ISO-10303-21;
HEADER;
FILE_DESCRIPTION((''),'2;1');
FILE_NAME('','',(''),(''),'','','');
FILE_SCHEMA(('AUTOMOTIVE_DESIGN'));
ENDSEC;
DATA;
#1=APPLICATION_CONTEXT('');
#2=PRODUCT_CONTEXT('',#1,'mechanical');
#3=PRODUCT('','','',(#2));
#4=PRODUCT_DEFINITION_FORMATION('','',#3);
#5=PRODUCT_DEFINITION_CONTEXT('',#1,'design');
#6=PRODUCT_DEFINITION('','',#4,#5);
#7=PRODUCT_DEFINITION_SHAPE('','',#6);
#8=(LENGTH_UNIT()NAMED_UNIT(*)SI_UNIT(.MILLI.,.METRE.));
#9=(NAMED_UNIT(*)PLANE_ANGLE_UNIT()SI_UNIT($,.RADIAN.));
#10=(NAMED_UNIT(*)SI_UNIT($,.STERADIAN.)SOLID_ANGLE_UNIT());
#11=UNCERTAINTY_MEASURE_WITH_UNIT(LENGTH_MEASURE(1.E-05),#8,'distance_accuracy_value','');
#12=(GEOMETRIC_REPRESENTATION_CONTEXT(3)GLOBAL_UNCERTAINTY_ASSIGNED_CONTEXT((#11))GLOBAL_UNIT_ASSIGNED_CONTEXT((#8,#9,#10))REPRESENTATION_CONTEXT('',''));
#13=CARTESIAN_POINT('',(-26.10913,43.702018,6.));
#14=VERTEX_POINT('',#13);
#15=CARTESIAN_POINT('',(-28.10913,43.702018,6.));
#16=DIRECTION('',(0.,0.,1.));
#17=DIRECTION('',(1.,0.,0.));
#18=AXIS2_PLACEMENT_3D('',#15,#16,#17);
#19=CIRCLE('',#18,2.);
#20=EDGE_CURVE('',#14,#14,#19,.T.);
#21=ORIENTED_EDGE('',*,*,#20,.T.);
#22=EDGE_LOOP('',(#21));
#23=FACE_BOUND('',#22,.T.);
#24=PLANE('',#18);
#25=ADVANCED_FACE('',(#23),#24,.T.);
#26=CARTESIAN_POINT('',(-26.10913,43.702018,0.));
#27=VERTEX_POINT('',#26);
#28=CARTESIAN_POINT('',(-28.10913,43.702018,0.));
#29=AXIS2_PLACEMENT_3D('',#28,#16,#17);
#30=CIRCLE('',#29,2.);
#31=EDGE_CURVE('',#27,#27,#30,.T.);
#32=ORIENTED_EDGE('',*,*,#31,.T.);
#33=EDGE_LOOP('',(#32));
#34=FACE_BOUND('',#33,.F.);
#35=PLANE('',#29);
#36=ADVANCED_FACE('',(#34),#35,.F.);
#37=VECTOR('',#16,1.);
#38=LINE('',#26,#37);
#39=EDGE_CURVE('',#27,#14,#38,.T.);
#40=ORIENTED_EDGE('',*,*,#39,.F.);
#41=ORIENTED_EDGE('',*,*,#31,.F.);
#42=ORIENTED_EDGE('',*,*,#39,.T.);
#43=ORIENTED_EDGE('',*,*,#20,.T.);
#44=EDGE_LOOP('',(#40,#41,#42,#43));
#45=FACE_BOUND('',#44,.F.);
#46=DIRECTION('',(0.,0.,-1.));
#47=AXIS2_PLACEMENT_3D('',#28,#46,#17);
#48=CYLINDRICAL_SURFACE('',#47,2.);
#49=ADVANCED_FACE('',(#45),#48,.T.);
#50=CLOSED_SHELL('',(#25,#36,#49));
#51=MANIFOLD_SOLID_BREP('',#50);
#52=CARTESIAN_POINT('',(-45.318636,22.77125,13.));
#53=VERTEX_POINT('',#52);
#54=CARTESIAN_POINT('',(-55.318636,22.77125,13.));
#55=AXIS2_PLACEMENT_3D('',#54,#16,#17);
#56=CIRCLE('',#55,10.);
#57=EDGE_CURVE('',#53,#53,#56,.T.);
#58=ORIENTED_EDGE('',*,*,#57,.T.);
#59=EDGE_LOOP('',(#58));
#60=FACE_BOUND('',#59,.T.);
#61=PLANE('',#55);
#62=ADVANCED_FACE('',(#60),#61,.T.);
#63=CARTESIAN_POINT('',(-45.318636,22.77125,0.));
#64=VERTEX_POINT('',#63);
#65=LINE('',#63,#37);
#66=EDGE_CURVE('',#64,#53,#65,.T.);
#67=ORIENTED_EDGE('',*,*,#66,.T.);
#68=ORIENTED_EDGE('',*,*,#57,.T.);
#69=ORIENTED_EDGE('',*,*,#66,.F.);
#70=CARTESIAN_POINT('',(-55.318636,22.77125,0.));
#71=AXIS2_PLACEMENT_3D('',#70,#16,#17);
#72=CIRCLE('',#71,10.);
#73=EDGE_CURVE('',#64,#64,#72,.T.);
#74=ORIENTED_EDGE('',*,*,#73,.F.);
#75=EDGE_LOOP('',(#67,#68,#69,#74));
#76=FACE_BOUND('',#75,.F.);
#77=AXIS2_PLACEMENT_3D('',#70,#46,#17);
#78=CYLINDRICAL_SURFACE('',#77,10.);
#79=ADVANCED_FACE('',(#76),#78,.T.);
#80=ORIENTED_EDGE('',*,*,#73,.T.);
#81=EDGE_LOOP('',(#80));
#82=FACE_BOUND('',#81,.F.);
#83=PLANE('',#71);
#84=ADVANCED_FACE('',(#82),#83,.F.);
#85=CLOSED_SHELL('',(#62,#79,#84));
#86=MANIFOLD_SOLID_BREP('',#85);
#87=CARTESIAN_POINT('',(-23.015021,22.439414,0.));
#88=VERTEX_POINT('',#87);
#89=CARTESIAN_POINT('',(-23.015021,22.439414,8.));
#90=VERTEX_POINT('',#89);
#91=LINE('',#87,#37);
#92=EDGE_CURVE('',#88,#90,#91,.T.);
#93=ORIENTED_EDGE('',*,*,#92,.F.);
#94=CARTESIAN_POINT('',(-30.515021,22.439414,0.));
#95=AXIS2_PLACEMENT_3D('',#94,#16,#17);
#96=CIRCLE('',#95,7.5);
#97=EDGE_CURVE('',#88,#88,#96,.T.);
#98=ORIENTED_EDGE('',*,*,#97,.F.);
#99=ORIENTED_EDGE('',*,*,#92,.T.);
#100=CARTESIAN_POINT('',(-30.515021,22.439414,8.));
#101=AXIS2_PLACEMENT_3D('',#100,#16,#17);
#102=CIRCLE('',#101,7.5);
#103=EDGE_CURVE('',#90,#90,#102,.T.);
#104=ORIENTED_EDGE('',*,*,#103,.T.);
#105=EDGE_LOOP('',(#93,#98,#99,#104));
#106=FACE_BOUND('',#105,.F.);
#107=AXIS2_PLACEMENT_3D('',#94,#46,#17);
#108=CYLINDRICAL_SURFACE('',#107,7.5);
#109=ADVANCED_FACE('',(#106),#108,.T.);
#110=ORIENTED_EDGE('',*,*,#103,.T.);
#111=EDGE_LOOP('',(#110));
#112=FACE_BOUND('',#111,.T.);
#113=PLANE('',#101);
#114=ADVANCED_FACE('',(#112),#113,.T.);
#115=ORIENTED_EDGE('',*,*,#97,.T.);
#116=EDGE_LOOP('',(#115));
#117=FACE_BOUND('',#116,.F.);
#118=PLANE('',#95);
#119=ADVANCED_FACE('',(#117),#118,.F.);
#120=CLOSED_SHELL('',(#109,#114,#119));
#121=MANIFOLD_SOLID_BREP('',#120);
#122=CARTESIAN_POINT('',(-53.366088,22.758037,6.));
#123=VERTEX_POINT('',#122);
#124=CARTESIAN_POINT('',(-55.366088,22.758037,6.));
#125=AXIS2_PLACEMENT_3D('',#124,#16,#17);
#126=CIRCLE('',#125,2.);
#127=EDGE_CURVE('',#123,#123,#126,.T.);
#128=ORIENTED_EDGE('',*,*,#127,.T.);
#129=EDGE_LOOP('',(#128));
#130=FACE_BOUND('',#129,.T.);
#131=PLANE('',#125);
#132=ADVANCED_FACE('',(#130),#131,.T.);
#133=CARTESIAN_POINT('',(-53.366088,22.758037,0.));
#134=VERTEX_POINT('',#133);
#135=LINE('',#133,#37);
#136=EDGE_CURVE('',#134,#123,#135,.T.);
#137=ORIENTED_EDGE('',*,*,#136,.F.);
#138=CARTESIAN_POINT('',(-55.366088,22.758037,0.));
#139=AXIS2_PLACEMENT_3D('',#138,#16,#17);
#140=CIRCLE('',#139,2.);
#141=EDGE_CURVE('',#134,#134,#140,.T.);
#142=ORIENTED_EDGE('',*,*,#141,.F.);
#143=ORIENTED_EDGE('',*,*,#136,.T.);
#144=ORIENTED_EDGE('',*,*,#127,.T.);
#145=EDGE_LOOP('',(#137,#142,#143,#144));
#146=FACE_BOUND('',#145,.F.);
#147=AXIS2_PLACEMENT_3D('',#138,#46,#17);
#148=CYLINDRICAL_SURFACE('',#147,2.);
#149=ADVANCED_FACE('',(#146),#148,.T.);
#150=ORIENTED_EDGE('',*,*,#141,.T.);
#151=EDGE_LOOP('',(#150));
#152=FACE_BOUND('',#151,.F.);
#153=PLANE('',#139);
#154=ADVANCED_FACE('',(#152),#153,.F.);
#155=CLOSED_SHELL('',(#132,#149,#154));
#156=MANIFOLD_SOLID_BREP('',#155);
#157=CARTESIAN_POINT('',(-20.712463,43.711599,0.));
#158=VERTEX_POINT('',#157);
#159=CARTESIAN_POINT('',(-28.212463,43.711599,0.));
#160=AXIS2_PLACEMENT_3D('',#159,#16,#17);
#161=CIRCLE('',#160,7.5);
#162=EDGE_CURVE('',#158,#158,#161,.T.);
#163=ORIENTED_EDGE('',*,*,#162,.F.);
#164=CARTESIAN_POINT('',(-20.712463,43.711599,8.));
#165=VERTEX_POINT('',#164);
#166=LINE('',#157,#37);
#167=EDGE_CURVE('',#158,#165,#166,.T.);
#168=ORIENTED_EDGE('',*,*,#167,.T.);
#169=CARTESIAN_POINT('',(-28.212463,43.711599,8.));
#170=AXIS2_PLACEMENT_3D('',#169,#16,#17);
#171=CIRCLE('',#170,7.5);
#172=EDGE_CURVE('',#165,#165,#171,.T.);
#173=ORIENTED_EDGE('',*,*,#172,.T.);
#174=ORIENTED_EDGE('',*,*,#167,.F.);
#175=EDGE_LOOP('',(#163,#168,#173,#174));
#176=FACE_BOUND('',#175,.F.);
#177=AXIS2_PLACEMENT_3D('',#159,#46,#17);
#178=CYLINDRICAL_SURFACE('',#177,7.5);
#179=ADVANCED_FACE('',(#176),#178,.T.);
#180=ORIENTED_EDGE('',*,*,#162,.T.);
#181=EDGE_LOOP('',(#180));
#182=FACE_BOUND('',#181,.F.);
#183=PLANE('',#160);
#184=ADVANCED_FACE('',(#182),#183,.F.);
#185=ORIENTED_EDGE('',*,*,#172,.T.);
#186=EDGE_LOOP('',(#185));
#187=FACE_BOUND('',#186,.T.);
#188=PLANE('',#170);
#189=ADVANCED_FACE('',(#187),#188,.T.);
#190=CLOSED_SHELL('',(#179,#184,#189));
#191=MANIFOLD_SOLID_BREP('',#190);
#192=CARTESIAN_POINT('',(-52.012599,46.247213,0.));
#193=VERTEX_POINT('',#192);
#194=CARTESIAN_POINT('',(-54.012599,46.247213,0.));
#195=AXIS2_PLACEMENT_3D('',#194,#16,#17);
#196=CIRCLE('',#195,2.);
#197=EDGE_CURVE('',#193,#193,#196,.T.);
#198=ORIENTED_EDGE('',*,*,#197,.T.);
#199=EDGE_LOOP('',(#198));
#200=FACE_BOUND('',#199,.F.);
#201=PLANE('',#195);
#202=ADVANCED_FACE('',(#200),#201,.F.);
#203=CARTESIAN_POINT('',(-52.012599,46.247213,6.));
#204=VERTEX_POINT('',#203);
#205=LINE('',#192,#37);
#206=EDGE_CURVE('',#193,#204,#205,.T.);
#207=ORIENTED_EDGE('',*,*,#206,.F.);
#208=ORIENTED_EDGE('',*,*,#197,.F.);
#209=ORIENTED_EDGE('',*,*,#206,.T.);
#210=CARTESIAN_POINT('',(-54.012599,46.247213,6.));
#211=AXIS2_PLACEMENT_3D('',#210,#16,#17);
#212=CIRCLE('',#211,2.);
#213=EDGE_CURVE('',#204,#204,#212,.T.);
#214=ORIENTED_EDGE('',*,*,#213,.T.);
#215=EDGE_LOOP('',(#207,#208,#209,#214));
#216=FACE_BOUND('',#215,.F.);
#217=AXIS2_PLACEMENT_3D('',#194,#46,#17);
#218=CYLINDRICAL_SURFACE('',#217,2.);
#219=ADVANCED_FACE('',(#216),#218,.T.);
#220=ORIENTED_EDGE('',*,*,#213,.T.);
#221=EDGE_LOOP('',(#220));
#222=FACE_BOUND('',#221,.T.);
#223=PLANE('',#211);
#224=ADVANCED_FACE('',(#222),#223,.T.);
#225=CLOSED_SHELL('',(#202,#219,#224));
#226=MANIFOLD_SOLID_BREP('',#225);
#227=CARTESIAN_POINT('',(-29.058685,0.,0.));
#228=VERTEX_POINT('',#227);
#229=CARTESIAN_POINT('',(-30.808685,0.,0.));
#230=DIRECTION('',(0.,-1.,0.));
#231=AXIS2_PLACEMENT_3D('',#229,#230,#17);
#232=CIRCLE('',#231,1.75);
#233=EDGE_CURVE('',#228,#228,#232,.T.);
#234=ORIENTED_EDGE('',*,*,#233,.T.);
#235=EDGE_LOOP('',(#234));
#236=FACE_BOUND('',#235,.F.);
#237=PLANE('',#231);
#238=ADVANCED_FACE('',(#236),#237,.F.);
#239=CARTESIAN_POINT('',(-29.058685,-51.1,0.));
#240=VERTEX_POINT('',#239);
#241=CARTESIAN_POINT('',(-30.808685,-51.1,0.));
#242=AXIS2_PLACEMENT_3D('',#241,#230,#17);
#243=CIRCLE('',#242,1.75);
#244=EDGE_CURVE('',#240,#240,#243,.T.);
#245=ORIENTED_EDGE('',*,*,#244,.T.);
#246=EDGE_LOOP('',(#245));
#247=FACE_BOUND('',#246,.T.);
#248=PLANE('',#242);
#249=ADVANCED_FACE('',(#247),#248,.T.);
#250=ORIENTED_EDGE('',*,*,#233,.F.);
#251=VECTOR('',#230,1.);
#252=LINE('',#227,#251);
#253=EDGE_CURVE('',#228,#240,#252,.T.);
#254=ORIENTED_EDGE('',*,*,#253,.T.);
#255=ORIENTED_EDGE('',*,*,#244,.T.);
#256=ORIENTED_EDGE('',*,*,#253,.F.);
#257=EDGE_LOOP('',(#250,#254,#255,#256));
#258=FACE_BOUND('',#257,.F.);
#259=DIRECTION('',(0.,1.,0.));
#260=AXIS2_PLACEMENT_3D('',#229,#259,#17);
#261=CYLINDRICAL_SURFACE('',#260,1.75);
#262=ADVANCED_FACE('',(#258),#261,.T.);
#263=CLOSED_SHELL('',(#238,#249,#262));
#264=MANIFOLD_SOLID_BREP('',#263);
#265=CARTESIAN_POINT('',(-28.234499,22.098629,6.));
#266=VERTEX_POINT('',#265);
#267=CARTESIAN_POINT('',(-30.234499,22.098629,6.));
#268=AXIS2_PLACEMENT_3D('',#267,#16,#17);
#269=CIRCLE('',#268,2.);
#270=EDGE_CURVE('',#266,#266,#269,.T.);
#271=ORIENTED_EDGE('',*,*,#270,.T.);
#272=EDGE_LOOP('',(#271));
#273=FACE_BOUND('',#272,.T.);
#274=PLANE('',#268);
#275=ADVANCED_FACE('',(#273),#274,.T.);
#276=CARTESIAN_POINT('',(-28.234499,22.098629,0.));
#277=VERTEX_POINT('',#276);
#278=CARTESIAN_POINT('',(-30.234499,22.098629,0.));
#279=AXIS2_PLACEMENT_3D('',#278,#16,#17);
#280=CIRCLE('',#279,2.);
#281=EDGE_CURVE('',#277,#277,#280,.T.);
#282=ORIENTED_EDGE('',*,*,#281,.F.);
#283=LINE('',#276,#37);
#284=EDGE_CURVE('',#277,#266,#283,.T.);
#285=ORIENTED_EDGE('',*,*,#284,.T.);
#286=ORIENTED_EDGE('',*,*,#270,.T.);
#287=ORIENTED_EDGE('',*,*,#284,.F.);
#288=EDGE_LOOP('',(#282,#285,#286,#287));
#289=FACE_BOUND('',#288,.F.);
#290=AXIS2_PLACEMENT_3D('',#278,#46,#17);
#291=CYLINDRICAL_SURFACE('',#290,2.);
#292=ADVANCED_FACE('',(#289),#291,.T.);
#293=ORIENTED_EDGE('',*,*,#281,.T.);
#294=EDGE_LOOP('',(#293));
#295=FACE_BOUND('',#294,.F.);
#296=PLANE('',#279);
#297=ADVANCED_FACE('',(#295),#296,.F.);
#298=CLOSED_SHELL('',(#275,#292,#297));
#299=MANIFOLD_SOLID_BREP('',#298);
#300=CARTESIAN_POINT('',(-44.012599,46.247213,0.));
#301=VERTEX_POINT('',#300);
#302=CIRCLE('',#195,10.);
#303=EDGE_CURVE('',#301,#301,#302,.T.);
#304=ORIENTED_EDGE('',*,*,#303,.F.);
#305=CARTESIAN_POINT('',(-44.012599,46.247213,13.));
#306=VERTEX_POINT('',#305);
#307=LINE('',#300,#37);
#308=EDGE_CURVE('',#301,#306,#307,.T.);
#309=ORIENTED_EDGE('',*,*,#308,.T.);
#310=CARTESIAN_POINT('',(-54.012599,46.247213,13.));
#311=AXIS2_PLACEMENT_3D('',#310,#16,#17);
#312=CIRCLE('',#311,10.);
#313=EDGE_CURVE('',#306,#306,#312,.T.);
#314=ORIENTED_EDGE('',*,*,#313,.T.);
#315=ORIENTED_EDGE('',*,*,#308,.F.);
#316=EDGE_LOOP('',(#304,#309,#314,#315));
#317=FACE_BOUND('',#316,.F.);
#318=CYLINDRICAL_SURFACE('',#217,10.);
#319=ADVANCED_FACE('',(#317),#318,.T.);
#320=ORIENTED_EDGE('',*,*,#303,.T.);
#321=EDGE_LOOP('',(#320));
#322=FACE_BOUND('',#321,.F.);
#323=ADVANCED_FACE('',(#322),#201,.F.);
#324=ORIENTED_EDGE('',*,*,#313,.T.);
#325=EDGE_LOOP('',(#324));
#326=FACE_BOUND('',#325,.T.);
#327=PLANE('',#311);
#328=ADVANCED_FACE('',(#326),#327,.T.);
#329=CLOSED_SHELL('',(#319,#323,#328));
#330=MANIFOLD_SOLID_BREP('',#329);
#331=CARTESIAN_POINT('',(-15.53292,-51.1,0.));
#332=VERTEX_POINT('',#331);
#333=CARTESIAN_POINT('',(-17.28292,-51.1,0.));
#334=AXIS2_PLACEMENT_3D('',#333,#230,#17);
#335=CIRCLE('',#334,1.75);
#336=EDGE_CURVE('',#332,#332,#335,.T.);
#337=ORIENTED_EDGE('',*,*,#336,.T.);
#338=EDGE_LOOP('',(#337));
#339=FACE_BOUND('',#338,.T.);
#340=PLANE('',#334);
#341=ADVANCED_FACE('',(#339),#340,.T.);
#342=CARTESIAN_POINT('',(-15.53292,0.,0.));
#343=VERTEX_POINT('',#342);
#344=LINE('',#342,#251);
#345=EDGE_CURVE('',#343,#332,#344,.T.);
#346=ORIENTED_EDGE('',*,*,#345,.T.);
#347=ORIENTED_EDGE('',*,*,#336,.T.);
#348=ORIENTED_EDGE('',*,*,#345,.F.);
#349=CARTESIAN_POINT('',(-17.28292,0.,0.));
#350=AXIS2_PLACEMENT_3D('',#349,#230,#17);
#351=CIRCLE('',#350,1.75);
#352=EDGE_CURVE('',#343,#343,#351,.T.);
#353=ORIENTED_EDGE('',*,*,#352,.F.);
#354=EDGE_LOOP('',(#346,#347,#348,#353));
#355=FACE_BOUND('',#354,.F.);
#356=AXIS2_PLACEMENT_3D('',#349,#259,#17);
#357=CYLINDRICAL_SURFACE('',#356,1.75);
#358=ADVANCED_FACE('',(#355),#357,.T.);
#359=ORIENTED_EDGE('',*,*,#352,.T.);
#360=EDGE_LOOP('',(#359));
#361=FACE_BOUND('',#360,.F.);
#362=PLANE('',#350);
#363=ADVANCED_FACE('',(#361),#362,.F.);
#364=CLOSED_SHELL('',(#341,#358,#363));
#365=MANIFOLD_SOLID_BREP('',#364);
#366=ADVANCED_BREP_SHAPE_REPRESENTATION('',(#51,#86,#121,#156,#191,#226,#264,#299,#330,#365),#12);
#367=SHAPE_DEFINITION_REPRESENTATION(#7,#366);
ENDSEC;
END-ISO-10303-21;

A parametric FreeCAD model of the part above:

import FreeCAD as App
import Part
import Sketcher
from FreeCAD import Vector
Q = App.Units.Quantity

doc = App.newDocument("Part")
body = doc.addObject("PartDesign::Body", "Body")

# Sketch on XZ plane
sketch1 = body.newObject("Sketcher::SketchObject", "Sketch")
sketch1.AttachmentSupport = (doc.getObject("XZ_Plane"), [""])
sketch1.MapMode = "FlatFace"
sketch1.addGeometry(Part.Circle(Vector(-17.3, 0, 0), Vector(0, 0, 1), 1.8), False)
sketch1.addConstraint([
    Sketcher.Constraint("PointOnObject", 0, 3, -1),
    Sketcher.Constraint("Diameter", 0, Q("3.5 mm")),
    Sketcher.Constraint("DistanceX", 0, 3, -1, 1, Q("17.28292 mm")),
])
pad1 = body.newObject("PartDesign::Pad", "Pad")
pad1.Profile = sketch1
pad1.Length = 51.1
body2 = doc.addObject("PartDesign::Body", "Body001")
body2.AllowCompound = True

# Sketch on XY plane
sketch2 = body2.newObject("Sketcher::SketchObject", "Sketch001")
sketch2.AttachmentSupport = (doc.getObject("XY_Plane001"), [""])
sketch2.MapMode = "FlatFace"
sketch2.addGeometry([
    Part.Circle(Vector(-31, 22, 0), Vector(0, 0, 1), 8),
    Part.Circle(Vector(-28, 44, 0), Vector(0, 0, 1), 8),
], False)
sketch2.addConstraint([
    Sketcher.Constraint("Equal", 0, 1),
    Sketcher.Constraint("Diameter", 0, Q("15 mm")),
    Sketcher.Constraint("DistanceY", -1, 1, 1, 3, Q("43.711599 mm")),
    Sketcher.Constraint("DistanceX", 0, 3, -1, 1, Q("30.515021 mm")),
    Sketcher.Constraint("DistanceX", 0, 3, 1, 3, Q("2.302558 mm")),
    Sketcher.Constraint("DistanceY", -1, 1, 0, 3, Q("22.439414 mm")),
])
pad2 = body2.newObject("PartDesign::Pad", "Pad001")
pad2.Profile = sketch2
pad2.Length = 8
body3 = doc.addObject("PartDesign::Body", "Body002")
body3.AllowCompound = True

# Sketch on XY plane
sketch3 = body3.newObject("Sketcher::SketchObject", "Sketch002")
sketch3.AttachmentSupport = (doc.getObject("XY_Plane002"), [""])
sketch3.MapMode = "FlatFace"
sketch3.addGeometry([
    Part.Circle(Vector(-54, 46, 0), Vector(0, 0, 1), 10),
    Part.Circle(Vector(-55, 23, 0), Vector(0, 0, 1), 10),
], False)
sketch3.addConstraint([
    Sketcher.Constraint("Equal", 0, 1),
    Sketcher.Constraint("Diameter", 0, Q("20 mm")),
    Sketcher.Constraint("DistanceX", 0, 3, -1, 1, Q("54.012599 mm")),
    Sketcher.Constraint("DistanceY", -1, 1, 1, 3, Q("22.77125 mm")),
    Sketcher.Constraint("DistanceY", -1, 1, 0, 3, Q("46.247213 mm")),
    Sketcher.Constraint("DistanceX", 1, 3, -1, 1, Q("55.318636 mm")),
])
pad3 = body3.newObject("PartDesign::Pad", "Pad002")
pad3.Profile = sketch3
pad3.Length = 13
body4 = doc.addObject("PartDesign::Body", "Body003")

# Sketch on XZ plane
sketch4 = body4.newObject("Sketcher::SketchObject", "Sketch003")
sketch4.AttachmentSupport = (doc.getObject("XZ_Plane003"), [""])
sketch4.MapMode = "FlatFace"
sketch4.addGeometry(Part.Circle(Vector(-30.8, 0, 0), Vector(0, 0, 1), 1.8), False)
sketch4.addConstraint([
    Sketcher.Constraint("PointOnObject", 0, 3, -1),
    Sketcher.Constraint("Diameter", 0, Q("3.5 mm")),
    Sketcher.Constraint("DistanceX", 0, 3, -1, 1, Q("30.808685 mm")),
])
pad4 = body4.newObject("PartDesign::Pad", "Pad003")
pad4.Profile = sketch4
pad4.Length = 51.1
body5 = doc.addObject("PartDesign::Body", "Body004")
body5.AllowCompound = True

# Sketch on XY plane
sketch5 = body5.newObject("Sketcher::SketchObject", "Sketch004")
sketch5.AttachmentSupport = (doc.getObject("XY_Plane004"), [""])
sketch5.MapMode = "FlatFace"
sketch5.addGeometry([
    Part.Circle(Vector(-54, 46.2, 0), Vector(0, 0, 1), 2),
    Part.Circle(Vector(-28.1, 43.7, 0), Vector(0, 0, 1), 2),
    Part.Circle(Vector(-30.2, 22.1, 0), Vector(0, 0, 1), 2),
    Part.Circle(Vector(-55.4, 22.8, 0), Vector(0, 0, 1), 2),
], False)
sketch5.addConstraint([
    Sketcher.Constraint("Equal", 0, 1),
    Sketcher.Constraint("Equal", 1, 2),
    Sketcher.Constraint("Equal", 2, 3),
    Sketcher.Constraint("Diameter", 0, Q("4 mm")),
    Sketcher.Constraint("DistanceX", 0, 3, -1, 1, Q("54.012599 mm")),
    Sketcher.Constraint("DistanceX", 2, 3, -1, 1, Q("30.234499 mm")),
    Sketcher.Constraint("DistanceX", 1, 3, -1, 1, Q("28.10913 mm")),
    Sketcher.Constraint("DistanceY", -1, 1, 1, 3, Q("43.702018 mm")),
    Sketcher.Constraint("DistanceY", -1, 1, 2, 3, Q("22.098629 mm")),
    Sketcher.Constraint("DistanceX", 3, 3, 0, 3, Q("1.353489 mm")),
    Sketcher.Constraint("DistanceY", 2, 3, 3, 3, Q("0.659408 mm")),
    Sketcher.Constraint("DistanceY", -1, 1, 0, 3, Q("46.247213 mm")),
])
pad5 = body5.newObject("PartDesign::Pad", "Pad004")
pad5.Profile = sketch5
pad5.Length = 6

doc.recompute()
